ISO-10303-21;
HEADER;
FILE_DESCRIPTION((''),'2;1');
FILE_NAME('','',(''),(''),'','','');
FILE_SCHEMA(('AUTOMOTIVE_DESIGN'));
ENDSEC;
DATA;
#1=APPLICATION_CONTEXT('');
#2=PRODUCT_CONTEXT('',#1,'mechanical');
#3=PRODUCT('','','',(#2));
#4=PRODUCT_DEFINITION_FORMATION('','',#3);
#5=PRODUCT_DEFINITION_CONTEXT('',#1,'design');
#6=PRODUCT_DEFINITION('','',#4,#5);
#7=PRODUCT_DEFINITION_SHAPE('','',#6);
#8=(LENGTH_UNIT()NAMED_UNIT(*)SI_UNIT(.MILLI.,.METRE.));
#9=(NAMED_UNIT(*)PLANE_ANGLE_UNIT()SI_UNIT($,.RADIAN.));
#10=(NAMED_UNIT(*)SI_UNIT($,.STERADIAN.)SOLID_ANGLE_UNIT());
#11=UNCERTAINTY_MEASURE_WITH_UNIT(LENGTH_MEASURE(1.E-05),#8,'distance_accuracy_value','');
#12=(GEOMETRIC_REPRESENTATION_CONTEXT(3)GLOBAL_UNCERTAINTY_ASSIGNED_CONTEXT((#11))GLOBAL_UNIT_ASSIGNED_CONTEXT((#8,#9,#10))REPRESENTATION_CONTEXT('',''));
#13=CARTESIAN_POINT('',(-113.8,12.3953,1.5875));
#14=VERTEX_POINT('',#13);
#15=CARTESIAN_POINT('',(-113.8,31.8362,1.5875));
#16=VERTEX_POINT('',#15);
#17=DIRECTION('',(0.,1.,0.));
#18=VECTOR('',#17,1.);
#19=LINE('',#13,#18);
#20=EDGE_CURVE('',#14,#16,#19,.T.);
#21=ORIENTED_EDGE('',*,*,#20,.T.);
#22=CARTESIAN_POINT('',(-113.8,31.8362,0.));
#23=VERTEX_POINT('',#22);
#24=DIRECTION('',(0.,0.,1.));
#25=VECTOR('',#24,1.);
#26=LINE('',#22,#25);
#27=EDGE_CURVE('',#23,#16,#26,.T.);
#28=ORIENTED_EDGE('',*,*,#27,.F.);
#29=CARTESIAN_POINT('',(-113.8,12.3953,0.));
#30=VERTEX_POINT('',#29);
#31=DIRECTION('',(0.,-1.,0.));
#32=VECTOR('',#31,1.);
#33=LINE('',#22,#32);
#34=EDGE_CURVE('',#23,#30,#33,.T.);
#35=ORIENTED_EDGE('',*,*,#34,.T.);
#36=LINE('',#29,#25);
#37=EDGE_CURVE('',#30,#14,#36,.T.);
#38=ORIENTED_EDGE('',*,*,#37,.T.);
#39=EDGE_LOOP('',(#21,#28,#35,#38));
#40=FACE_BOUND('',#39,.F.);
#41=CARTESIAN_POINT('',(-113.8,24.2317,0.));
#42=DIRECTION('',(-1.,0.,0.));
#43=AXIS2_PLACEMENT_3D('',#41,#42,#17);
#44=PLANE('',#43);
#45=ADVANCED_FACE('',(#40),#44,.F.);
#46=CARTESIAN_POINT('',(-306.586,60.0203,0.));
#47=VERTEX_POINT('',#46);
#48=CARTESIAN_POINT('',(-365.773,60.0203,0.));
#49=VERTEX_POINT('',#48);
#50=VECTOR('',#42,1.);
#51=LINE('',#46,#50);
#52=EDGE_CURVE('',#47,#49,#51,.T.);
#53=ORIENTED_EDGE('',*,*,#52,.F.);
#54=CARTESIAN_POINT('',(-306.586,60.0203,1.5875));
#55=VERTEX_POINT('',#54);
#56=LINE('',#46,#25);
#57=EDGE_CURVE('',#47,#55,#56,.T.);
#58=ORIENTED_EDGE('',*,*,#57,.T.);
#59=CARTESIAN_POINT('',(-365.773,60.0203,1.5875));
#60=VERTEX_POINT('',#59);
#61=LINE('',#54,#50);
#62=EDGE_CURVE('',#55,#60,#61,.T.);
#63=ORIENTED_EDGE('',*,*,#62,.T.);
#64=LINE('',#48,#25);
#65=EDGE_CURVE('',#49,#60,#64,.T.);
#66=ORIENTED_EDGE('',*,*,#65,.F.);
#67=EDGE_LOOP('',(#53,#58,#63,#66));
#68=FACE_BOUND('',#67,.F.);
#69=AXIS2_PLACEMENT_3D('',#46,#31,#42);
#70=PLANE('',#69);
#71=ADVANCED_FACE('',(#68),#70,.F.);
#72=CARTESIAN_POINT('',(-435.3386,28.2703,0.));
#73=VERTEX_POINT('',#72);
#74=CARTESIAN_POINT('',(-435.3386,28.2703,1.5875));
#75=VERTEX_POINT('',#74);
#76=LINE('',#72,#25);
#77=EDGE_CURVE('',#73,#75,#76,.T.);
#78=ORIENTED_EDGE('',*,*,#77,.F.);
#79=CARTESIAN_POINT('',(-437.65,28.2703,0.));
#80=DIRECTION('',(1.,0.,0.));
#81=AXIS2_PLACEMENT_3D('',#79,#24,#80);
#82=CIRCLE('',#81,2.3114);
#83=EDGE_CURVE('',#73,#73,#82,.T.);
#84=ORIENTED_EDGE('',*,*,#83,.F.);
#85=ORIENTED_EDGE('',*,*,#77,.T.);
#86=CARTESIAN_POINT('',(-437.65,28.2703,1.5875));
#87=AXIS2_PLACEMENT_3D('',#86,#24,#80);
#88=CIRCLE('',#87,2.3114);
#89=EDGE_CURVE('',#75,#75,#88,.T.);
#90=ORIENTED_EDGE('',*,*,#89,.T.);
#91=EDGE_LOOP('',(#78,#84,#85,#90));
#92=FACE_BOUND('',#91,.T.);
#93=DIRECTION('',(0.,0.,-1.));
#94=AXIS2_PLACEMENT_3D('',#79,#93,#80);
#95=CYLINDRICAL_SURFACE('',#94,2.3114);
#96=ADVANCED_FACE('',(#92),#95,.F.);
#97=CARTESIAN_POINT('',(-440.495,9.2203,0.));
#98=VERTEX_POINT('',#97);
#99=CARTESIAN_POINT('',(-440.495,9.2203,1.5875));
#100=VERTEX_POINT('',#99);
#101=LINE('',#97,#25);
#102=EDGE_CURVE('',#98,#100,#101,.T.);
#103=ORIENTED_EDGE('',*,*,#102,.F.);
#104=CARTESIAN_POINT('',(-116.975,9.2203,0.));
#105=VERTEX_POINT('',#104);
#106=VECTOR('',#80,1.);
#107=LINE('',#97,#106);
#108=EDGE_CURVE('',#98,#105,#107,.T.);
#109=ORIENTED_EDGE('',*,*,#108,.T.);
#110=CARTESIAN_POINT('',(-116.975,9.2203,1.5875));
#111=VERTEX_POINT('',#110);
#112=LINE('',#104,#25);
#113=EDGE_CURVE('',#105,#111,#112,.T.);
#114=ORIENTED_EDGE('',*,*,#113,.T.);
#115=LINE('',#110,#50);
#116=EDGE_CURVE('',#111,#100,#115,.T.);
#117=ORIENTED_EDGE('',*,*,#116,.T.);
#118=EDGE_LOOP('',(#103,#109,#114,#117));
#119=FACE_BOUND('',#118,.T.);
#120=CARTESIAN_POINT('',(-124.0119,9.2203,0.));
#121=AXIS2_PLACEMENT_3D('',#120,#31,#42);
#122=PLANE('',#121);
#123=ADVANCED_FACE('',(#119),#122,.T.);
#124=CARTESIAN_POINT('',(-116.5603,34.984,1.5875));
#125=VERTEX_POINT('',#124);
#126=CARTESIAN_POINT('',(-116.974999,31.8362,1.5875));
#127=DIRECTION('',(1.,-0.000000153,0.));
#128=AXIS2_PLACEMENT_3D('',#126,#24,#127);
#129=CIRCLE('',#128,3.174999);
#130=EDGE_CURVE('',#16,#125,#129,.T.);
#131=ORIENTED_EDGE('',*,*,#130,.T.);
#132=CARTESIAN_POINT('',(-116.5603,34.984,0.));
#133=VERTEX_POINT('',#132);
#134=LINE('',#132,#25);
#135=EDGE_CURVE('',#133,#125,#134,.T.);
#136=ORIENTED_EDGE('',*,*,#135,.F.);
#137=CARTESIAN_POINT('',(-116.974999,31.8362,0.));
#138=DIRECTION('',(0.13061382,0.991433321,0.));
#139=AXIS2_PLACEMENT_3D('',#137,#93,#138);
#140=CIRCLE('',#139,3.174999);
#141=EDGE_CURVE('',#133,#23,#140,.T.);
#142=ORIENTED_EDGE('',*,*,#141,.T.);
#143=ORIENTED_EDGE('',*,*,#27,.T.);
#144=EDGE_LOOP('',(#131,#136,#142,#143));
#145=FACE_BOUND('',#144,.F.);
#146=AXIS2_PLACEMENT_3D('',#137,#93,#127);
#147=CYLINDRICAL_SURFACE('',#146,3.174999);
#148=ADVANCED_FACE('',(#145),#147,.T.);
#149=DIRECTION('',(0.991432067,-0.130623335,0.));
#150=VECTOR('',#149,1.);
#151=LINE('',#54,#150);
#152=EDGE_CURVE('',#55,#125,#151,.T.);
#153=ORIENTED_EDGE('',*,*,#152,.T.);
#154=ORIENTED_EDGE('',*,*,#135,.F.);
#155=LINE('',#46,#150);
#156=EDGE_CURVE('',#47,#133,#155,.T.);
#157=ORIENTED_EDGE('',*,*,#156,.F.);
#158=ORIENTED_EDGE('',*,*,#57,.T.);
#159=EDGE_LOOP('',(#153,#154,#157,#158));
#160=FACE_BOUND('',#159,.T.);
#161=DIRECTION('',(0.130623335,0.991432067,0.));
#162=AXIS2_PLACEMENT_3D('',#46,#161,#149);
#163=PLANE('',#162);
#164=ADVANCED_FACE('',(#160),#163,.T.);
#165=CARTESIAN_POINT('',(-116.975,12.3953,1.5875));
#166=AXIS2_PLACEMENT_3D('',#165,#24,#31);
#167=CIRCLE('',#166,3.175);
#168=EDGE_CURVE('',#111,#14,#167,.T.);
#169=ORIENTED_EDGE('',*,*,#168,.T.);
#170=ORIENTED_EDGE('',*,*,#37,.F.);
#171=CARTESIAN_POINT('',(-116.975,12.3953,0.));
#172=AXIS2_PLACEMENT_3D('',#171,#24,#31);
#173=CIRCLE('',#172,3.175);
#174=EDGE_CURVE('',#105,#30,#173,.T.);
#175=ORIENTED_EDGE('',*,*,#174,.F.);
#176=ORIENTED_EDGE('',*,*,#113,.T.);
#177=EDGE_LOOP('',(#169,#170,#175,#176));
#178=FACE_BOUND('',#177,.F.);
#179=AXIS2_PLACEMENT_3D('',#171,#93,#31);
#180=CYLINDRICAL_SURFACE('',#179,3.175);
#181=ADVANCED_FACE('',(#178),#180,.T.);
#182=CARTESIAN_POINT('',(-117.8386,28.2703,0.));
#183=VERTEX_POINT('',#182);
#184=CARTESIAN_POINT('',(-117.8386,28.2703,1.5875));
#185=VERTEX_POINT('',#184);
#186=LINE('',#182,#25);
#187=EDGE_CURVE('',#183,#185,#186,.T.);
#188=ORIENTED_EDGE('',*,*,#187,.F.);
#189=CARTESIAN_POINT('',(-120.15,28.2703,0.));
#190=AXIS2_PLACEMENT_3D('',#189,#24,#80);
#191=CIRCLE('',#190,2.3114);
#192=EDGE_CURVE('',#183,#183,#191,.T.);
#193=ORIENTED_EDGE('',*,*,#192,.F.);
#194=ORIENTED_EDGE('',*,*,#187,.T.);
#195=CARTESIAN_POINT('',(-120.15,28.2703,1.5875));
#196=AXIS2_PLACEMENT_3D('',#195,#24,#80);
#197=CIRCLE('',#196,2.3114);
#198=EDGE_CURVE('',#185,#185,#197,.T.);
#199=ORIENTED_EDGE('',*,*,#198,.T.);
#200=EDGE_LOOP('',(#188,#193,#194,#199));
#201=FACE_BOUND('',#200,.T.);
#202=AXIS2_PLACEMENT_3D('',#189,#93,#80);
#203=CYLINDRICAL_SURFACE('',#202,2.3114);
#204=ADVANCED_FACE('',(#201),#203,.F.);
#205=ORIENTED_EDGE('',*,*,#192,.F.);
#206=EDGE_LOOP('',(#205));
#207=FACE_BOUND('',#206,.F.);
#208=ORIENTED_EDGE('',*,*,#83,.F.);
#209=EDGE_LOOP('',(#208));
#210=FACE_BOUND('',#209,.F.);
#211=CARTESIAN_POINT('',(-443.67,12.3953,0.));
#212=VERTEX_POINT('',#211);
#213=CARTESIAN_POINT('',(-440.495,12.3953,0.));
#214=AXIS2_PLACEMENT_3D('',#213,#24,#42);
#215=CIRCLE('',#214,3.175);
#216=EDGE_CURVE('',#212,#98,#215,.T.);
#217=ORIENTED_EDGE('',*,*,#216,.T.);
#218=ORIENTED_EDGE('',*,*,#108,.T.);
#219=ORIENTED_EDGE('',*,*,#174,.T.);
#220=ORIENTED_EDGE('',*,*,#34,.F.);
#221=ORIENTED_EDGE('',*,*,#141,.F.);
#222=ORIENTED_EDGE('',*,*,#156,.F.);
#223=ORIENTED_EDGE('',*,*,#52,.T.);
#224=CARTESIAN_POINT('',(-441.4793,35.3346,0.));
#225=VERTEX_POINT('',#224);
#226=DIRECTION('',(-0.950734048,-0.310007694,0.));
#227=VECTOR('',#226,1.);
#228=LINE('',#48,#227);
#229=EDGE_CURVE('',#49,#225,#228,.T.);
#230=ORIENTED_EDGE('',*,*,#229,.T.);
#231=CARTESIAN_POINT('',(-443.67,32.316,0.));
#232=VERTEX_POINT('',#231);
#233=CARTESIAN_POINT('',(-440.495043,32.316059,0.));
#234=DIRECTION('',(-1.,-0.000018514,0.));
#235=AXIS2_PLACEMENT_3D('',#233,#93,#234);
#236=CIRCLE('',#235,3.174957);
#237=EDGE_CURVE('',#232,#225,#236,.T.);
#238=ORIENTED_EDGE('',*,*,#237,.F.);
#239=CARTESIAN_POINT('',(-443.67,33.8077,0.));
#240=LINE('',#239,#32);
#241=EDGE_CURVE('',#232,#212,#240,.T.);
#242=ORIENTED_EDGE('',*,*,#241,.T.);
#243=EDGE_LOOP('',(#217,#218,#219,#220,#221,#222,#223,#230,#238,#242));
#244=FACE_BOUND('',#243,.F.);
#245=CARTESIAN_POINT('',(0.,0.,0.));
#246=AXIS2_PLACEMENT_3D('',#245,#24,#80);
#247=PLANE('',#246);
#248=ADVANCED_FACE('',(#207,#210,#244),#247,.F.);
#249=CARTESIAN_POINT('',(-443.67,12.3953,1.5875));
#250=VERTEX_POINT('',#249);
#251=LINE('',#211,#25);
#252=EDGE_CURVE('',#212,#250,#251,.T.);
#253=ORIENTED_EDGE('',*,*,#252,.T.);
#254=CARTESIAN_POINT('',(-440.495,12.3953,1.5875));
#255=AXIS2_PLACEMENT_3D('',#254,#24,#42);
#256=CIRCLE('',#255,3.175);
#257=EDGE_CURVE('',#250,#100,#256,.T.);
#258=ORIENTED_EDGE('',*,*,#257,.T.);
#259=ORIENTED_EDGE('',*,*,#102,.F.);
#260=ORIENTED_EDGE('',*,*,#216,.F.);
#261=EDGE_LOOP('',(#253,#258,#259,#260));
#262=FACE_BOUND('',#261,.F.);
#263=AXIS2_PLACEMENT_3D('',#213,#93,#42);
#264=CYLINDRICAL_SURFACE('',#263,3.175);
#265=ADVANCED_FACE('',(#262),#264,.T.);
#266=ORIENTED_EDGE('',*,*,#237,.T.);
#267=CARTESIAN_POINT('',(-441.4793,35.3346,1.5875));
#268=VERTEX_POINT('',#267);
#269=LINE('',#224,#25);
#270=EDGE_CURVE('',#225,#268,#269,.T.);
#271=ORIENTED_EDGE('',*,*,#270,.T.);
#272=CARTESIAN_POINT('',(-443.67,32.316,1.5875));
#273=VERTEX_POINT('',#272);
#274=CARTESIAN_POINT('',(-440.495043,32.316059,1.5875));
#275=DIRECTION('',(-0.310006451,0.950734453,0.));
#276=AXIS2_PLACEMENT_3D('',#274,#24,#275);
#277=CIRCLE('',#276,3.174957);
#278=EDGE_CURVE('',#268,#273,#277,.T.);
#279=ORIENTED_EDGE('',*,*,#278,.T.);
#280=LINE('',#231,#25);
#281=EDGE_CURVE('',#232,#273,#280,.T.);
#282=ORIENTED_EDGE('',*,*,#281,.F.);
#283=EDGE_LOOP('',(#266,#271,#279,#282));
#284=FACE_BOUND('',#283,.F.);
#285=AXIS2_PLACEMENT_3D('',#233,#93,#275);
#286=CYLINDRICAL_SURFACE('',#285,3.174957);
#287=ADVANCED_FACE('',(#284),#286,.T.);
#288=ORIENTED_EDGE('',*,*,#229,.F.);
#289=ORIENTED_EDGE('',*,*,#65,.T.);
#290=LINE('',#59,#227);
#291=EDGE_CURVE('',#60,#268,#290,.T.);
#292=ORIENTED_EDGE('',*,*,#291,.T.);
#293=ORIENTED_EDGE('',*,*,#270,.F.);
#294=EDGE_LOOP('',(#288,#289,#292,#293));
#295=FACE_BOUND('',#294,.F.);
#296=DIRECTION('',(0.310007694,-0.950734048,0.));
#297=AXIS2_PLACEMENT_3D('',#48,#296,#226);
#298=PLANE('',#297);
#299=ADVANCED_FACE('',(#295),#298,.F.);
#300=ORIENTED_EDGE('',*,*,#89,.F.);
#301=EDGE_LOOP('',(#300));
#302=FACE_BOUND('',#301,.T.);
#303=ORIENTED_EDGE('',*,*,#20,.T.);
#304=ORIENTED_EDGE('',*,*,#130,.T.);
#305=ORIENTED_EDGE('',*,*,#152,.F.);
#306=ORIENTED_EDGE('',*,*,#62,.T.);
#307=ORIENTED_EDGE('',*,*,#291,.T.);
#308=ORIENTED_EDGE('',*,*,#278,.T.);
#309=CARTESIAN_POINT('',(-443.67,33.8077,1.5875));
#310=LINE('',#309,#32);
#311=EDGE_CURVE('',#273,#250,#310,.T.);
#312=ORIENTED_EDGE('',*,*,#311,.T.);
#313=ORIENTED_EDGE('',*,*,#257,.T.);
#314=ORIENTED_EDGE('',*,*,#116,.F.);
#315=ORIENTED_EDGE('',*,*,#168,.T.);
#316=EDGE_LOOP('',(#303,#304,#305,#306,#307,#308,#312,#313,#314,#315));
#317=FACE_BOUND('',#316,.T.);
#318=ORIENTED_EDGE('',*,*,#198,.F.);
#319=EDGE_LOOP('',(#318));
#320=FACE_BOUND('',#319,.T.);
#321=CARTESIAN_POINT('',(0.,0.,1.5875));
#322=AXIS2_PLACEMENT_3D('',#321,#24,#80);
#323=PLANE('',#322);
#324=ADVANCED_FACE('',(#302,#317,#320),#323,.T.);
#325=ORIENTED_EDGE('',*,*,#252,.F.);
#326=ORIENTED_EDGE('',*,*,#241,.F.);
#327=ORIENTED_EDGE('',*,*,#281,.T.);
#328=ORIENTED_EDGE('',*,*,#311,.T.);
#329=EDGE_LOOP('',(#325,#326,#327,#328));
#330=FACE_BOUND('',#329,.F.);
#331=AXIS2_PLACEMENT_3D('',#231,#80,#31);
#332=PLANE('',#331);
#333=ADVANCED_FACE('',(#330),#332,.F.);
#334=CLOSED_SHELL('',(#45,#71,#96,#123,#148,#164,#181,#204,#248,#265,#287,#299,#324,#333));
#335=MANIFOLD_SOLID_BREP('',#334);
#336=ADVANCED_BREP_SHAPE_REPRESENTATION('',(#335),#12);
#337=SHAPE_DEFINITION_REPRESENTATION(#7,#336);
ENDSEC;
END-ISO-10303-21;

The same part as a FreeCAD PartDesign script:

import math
import FreeCAD as App
import Part
import Sketcher
Q = App.Units.Quantity

doc = App.newDocument("Part")
body = doc.addObject("PartDesign::Body", "Body")

# Sketch on XY plane
sketch1 = doc.addObject("Sketcher::SketchObject", "Sketch")
body.addObject(sketch1)
sketch1.AttachmentSupport = (doc.XY_Plane, [""])
sketch1.MapMode = "FlatFace"
sketch1.addGeometry(Part.LineSegment(App.Vector(-440.5, 9.2, 0), App.Vector(-117, 9.2, 0)), False)
sketch1.addGeometry(Part.ArcOfCircle(Part.Circle(App.Vector(-117, 12.4, 0), App.Vector(0, 0, 1), 3.2), math.radians(-90), math.radians(0)), False)
sketch1.addGeometry(Part.LineSegment(App.Vector(-113.8, 12.4, 0), App.Vector(-113.8, 31.8, 0)), False)
sketch1.addGeometry(Part.ArcOfCircle(Part.Circle(App.Vector(-117, 31.8, 0), App.Vector(0, 0, 1), 3.2), math.radians(0), math.radians(82)), False)
sketch1.addGeometry(Part.LineSegment(App.Vector(-116.6, 35, 0), App.Vector(-306.6, 60, 0)), False)
sketch1.addGeometry(Part.LineSegment(App.Vector(-306.6, 60, 0), App.Vector(-365.8, 60, 0)), False)
sketch1.addGeometry(Part.LineSegment(App.Vector(-365.8, 60, 0), App.Vector(-441.5, 35.3, 0)), False)
sketch1.addGeometry(Part.ArcOfCircle(Part.Circle(App.Vector(-440.5, 32.3, 0), App.Vector(0, 0, 1), 3.2), math.radians(108), math.radians(180)), False)
sketch1.addGeometry(Part.LineSegment(App.Vector(-443.7, 32.3, 0), App.Vector(-443.7, 12.4, 0)), False)
sketch1.addGeometry(Part.ArcOfCircle(Part.Circle(App.Vector(-440.5, 12.4, 0), App.Vector(0, 0, 1), 3.2), math.radians(180), math.radians(270)), False)
sketch1.addGeometry(Part.Circle(App.Vector(-437.6, 28.3, 0), App.Vector(0, 0, 1), 2.3), False)
sketch1.addGeometry(Part.Circle(App.Vector(-120.2, 28.3, 0), App.Vector(0, 0, 1), 2.3), False)
sketch1.addGeometry(Part.Circle(App.Vector(-361.4, 54.8, 0), App.Vector(0, 0, 1), 2.3), False)
sketch1.addConstraint(Sketcher.Constraint("Tangent", 0, 2, 1, 1))
sketch1.addConstraint(Sketcher.Constraint("Tangent", 1, 2, 2, 1))
sketch1.addConstraint(Sketcher.Constraint("Tangent", 2, 2, 3, 1))
sketch1.addConstraint(Sketcher.Constraint("Tangent", 3, 2, 4, 1))
sketch1.addConstraint(Sketcher.Constraint("Coincident", 4, 2, 5, 1))
sketch1.addConstraint(Sketcher.Constraint("Coincident", 5, 2, 6, 1))
sketch1.addConstraint(Sketcher.Constraint("Tangent", 6, 2, 7, 1))
sketch1.addConstraint(Sketcher.Constraint("Tangent", 7, 2, 8, 1))
sketch1.addConstraint(Sketcher.Constraint("Tangent", 8, 2, 9, 1))
sketch1.addConstraint(Sketcher.Constraint("Tangent", 9, 2, 0, 1))
sketch1.addConstraint(Sketcher.Constraint("Horizontal", 0))
sketch1.addConstraint(Sketcher.Constraint("Vertical", 2))
sketch1.addConstraint(Sketcher.Constraint("Horizontal", 5))
sketch1.addConstraint(Sketcher.Constraint("Vertical", 8))
sketch1.addConstraint(Sketcher.Constraint("Equal", 1, 3))
sketch1.addConstraint(Sketcher.Constraint("Equal", 3, 7))
sketch1.addConstraint(Sketcher.Constraint("Equal", 7, 9))
sketch1.addConstraint(Sketcher.Constraint("Equal", 10, 11))
sketch1.addConstraint(Sketcher.Constraint("Equal", 11, 12))
sketch1.addConstraint(Sketcher.Constraint("Horizontal", 10, 3, 11, 3))
sketch1.addConstraint(Sketcher.Constraint("Radius", 1, Q("0.125 in")))
sketch1.addConstraint(Sketcher.Constraint("Diameter", 10, Q("0.182 in")))
sketch1.addConstraint(Sketcher.Constraint("DistanceX", 11, 3, 3, 3, Q("0.125 in")))
sketch1.addConstraint(Sketcher.Constraint("DistanceX", 10, 3, 12, 3, Q("3 in")))
sketch1.addConstraint(Sketcher.Constraint("DistanceX", 10, 3, 11, 3, Q("12.5 in")))
sketch1.addConstraint(Sketcher.Constraint("DistanceX", 0, 1, 0, 2, Q("12.737 in")))
sketch1.addConstraint(Sketcher.Constraint("Angle", 6, Q("-161.9403 deg")))
sketch1.addConstraint(Sketcher.Constraint("DistanceY", 0, 2, 11, 3, Q("0.75 in")))
sketch1.addConstraint(Sketcher.Constraint("DistanceX", 12, 3, 4, 2, Q("2.16 in")))
sketch1.addConstraint(Sketcher.Constraint("DistanceY", 10, 3, 4, 2, Q("1.25 in")))
sketch1.addConstraint(Sketcher.Constraint("DistanceX", 5, 2, 5, 1, Q("2.3302 in")))
sketch1.addConstraint(Sketcher.Constraint("DistanceY", 2, 1, 2, 2, Q("0.7654 in")))
sketch1.addConstraint(Sketcher.Constraint("DistanceY", -1, 1, 1, 3, Q("0.488 in")))
sketch1.addConstraint(Sketcher.Constraint("DistanceY", -1, 1, 12, 3, Q("2.159 in")))
sketch1.addConstraint(Sketcher.Constraint("DistanceX", 3, 2, -1, 1, Q("4.589 in")))
pad1 = doc.addObject("PartDesign::Pad", "Pad")
body.addObject(pad1)
pad1.Profile = sketch1
pad1.Length = Q("0.0625 in")

# Sketch on XY plane
sketch2 = doc.addObject("Sketcher::SketchObject", "Sketch001")
body.addObject(sketch2)
sketch2.AttachmentSupport = (doc.XY_Plane, [""])
sketch2.MapMode = "FlatFace"
sketch2.AttachmentOffset = App.Placement(App.Vector(0, 0, 0.0625 * 25.4), App.Rotation())
sketch2.addGeometry(Part.Circle(App.Vector(-361.4, 54.8, 0), App.Vector(0, 0, 1), 2.3), False)
sketch2.addConstraint(Sketcher.Constraint("Diameter", 0, Q("0.182 in")))
sketch2.addConstraint(Sketcher.Constraint("DistanceY", -1, 1, 0, 3, Q("2.159 in")))
sketch2.addConstraint(Sketcher.Constraint("DistanceX", 0, 3, -1, 1, Q("361.45 mm")))
pad2 = doc.addObject("PartDesign::Pad", "Pad001")
body.addObject(pad2)
pad2.Profile = sketch2
pad2.Length = Q("0.0625 in")
pad2.Reversed = True

doc.recompute()
